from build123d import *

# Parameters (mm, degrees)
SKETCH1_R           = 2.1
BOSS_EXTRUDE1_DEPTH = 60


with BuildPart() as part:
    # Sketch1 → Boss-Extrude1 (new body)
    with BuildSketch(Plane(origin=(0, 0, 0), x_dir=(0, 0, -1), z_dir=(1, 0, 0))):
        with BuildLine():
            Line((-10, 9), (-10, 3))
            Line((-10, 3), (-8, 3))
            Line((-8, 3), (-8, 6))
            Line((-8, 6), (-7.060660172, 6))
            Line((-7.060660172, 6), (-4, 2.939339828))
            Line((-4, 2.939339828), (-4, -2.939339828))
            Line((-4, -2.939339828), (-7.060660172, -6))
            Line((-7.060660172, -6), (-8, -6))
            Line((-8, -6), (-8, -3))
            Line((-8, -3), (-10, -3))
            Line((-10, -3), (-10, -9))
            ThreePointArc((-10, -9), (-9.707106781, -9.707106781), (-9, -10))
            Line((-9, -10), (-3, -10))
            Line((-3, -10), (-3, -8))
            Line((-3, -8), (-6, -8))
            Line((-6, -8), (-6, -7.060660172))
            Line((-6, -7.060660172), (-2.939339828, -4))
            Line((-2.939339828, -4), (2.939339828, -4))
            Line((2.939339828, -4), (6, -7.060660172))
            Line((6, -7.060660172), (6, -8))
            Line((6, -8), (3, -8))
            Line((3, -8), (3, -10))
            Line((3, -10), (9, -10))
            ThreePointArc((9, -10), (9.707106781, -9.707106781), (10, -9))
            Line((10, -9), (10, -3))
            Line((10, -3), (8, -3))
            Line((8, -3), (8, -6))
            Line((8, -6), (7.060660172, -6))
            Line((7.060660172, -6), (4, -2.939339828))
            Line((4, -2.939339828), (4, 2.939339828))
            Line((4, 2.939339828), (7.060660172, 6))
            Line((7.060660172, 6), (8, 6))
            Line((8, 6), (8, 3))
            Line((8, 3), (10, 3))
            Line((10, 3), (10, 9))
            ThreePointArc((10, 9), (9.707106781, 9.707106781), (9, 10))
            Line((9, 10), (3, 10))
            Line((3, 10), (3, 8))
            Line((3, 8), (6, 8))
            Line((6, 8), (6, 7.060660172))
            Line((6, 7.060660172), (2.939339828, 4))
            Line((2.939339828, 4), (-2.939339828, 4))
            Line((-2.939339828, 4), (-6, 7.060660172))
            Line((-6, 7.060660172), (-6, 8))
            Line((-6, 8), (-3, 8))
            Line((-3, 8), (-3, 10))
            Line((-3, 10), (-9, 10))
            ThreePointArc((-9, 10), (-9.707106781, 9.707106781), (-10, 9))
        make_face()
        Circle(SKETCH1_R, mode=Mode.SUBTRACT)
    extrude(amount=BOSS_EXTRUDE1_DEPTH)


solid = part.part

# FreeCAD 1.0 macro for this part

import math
import FreeCAD as App
import Part
import Sketcher

doc = App.newDocument("Part")
params = doc.addObject("Spreadsheet::Sheet", "Params")
for row, (alias, value) in enumerate([
    ("sketch1_radius", "1 mm"),
    ("sketch1_diameter", "4.2 mm"),
    ("sketch1_width", "6 mm"),
    ("sketch1_width2", "3 mm"),
    ("sketch1_width3", "2 mm"),
    ("pad1_length", "60 mm"),
], start=1):
    params.set(f"A{row}", alias)
    params.set(f"B{row}", "=" + value)
    params.setAlias(f"B{row}", alias)

body = doc.addObject("PartDesign::Body", "Body")

# Sketch on YZ plane
sketch1 = doc.addObject("Sketcher::SketchObject", "Sketch")
body.addObject(sketch1)
sketch1.AttachmentSupport = (doc.YZ_Plane, [""])
sketch1.MapMode = "FlatFace"
sketch1.addGeometry([
    Part.LineSegment(App.Vector(9, 10, 0), App.Vector(3, 10, 0)),  # 0
    Part.LineSegment(App.Vector(3, 10, 0), App.Vector(3, 8, 0)),  # 1
    Part.LineSegment(App.Vector(3, 8, 0), App.Vector(6, 8, 0)),  # 2
    Part.LineSegment(App.Vector(6, 8, 0), App.Vector(6, 7.1, 0)),  # 3
    Part.LineSegment(App.Vector(6, 7.1, 0), App.Vector(2.9, 4, 0)),  # 4
    Part.LineSegment(App.Vector(2.9, 4, 0), App.Vector(-2.9, 4, 0)),  # 5
    Part.LineSegment(App.Vector(-2.9, 4, 0), App.Vector(-6, 7.1, 0)),  # 6
    Part.LineSegment(App.Vector(-6, 7.1, 0), App.Vector(-6, 8, 0)),  # 7
    Part.LineSegment(App.Vector(-6, 8, 0), App.Vector(-3, 8, 0)),  # 8
    Part.LineSegment(App.Vector(-3, 8, 0), App.Vector(-3, 10, 0)),  # 9
    Part.LineSegment(App.Vector(-3, 10, 0), App.Vector(-9, 10, 0)),  # 10
    Part.ArcOfCircle(Part.Circle(App.Vector(-9, 9, 0), App.Vector(0, 0, 1), 1), math.radians(90), math.radians(180)),  # 11
    Part.LineSegment(App.Vector(-10, 9, 0), App.Vector(-10, 3, 0)),  # 12
    Part.LineSegment(App.Vector(-10, 3, 0), App.Vector(-8, 3, 0)),  # 13
    Part.LineSegment(App.Vector(-8, 3, 0), App.Vector(-8, 6, 0)),  # 14
    Part.LineSegment(App.Vector(-8, 6, 0), App.Vector(-7.1, 6, 0)),  # 15
    Part.LineSegment(App.Vector(-7.1, 6, 0), App.Vector(-4, 2.9, 0)),  # 16
    Part.LineSegment(App.Vector(-4, 2.9, 0), App.Vector(-4, -2.9, 0)),  # 17
    Part.LineSegment(App.Vector(-4, -2.9, 0), App.Vector(-7.1, -6, 0)),  # 18
    Part.LineSegment(App.Vector(-7.1, -6, 0), App.Vector(-8, -6, 0)),  # 19
    Part.LineSegment(App.Vector(-8, -6, 0), App.Vector(-8, -3, 0)),  # 20
    Part.LineSegment(App.Vector(-8, -3, 0), App.Vector(-10, -3, 0)),  # 21
    Part.LineSegment(App.Vector(-10, -3, 0), App.Vector(-10, -9, 0)),  # 22
    Part.ArcOfCircle(Part.Circle(App.Vector(-9, -9, 0), App.Vector(0, 0, 1), 1), math.radians(-180), math.radians(-90)),  # 23
    Part.LineSegment(App.Vector(-9, -10, 0), App.Vector(-3, -10, 0)),  # 24
    Part.LineSegment(App.Vector(-3, -10, 0), App.Vector(-3, -8, 0)),  # 25
    Part.LineSegment(App.Vector(-3, -8, 0), App.Vector(-6, -8, 0)),  # 26
    Part.LineSegment(App.Vector(-6, -8, 0), App.Vector(-6, -7.1, 0)),  # 27
    Part.LineSegment(App.Vector(-6, -7.1, 0), App.Vector(-2.9, -4, 0)),  # 28
    Part.LineSegment(App.Vector(-2.9, -4, 0), App.Vector(2.9, -4, 0)),  # 29
    Part.LineSegment(App.Vector(2.9, -4, 0), App.Vector(6, -7.1, 0)),  # 30
    Part.LineSegment(App.Vector(6, -7.1, 0), App.Vector(6, -8, 0)),  # 31
    Part.LineSegment(App.Vector(6, -8, 0), App.Vector(3, -8, 0)),  # 32
    Part.LineSegment(App.Vector(3, -8, 0), App.Vector(3, -10, 0)),  # 33
    Part.LineSegment(App.Vector(3, -10, 0), App.Vector(9, -10, 0)),  # 34
    Part.ArcOfCircle(Part.Circle(App.Vector(9, -9, 0), App.Vector(0, 0, 1), 1), math.radians(-90), math.radians(0)),  # 35
    Part.LineSegment(App.Vector(10, -9, 0), App.Vector(10, -3, 0)),  # 36
    Part.LineSegment(App.Vector(10, -3, 0), App.Vector(8, -3, 0)),  # 37
    Part.LineSegment(App.Vector(8, -3, 0), App.Vector(8, -6, 0)),  # 38
    Part.LineSegment(App.Vector(8, -6, 0), App.Vector(7.1, -6, 0)),  # 39
    Part.LineSegment(App.Vector(7.1, -6, 0), App.Vector(4, -2.9, 0)),  # 40
    Part.LineSegment(App.Vector(4, -2.9, 0), App.Vector(4, 2.9, 0)),  # 41
    Part.LineSegment(App.Vector(4, 2.9, 0), App.Vector(7.1, 6, 0)),  # 42
    Part.LineSegment(App.Vector(7.1, 6, 0), App.Vector(8, 6, 0)),  # 43
    Part.LineSegment(App.Vector(8, 6, 0), App.Vector(8, 3, 0)),  # 44
    Part.LineSegment(App.Vector(8, 3, 0), App.Vector(10, 3, 0)),  # 45
    Part.LineSegment(App.Vector(10, 3, 0), App.Vector(10, 9, 0)),  # 46
    Part.ArcOfCircle(Part.Circle(App.Vector(9, 9, 0), App.Vector(0, 0, 1), 1), math.radians(0), math.radians(90)),  # 47
    Part.Circle(App.Vector(0, 0, 0), App.Vector(0, 0, 1), 2.1),  # 48
], False)
sketch1.addConstraint([
    Sketcher.Constraint("Coincident", 0, 2, 1, 1),
    Sketcher.Constraint("Coincident", 1, 2, 2, 1),
    Sketcher.Constraint("Coincident", 2, 2, 3, 1),
    Sketcher.Constraint("Coincident", 3, 2, 4, 1),
    Sketcher.Constraint("Coincident", 4, 2, 5, 1),
    Sketcher.Constraint("Coincident", 5, 2, 6, 1),
    Sketcher.Constraint("Coincident", 6, 2, 7, 1),
    Sketcher.Constraint("Coincident", 7, 2, 8, 1),
    Sketcher.Constraint("Coincident", 8, 2, 9, 1),
    Sketcher.Constraint("Coincident", 9, 2, 10, 1),
    Sketcher.Constraint("Tangent", 10, 2, 11, 1),
    Sketcher.Constraint("Tangent", 11, 2, 12, 1),
    Sketcher.Constraint("Coincident", 12, 2, 13, 1),
    Sketcher.Constraint("Coincident", 13, 2, 14, 1),
    Sketcher.Constraint("Coincident", 14, 2, 15, 1),
    Sketcher.Constraint("Coincident", 15, 2, 16, 1),
    Sketcher.Constraint("Coincident", 16, 2, 17, 1),
    Sketcher.Constraint("Coincident", 17, 2, 18, 1),
    Sketcher.Constraint("Coincident", 18, 2, 19, 1),
    Sketcher.Constraint("Coincident", 19, 2, 20, 1),
    Sketcher.Constraint("Coincident", 20, 2, 21, 1),
    Sketcher.Constraint("Coincident", 21, 2, 22, 1),
    Sketcher.Constraint("Tangent", 22, 2, 23, 1),
    Sketcher.Constraint("Tangent", 23, 2, 24, 1),
    Sketcher.Constraint("Coincident", 24, 2, 25, 1),
    Sketcher.Constraint("Coincident", 25, 2, 26, 1),
    Sketcher.Constraint("Coincident", 26, 2, 27, 1),
    Sketcher.Constraint("Coincident", 27, 2, 28, 1),
    Sketcher.Constraint("Coincident", 28, 2, 29, 1),
    Sketcher.Constraint("Coincident", 29, 2, 30, 1),
    Sketcher.Constraint("Coincident", 30, 2, 31, 1),
    Sketcher.Constraint("Coincident", 31, 2, 32, 1),
    Sketcher.Constraint("Coincident", 32, 2, 33, 1),
    Sketcher.Constraint("Coincident", 33, 2, 34, 1),
    Sketcher.Constraint("Tangent", 34, 2, 35, 1),
    Sketcher.Constraint("Tangent", 35, 2, 36, 1),
    Sketcher.Constraint("Coincident", 36, 2, 37, 1),
    Sketcher.Constraint("Coincident", 37, 2, 38, 1),
    Sketcher.Constraint("Coincident", 38, 2, 39, 1),
    Sketcher.Constraint("Coincident", 39, 2, 40, 1),
    Sketcher.Constraint("Coincident", 40, 2, 41, 1),
    Sketcher.Constraint("Coincident", 41, 2, 42, 1),
    Sketcher.Constraint("Coincident", 42, 2, 43, 1),
    Sketcher.Constraint("Coincident", 43, 2, 44, 1),
    Sketcher.Constraint("Coincident", 44, 2, 45, 1),
    Sketcher.Constraint("Coincident", 45, 2, 46, 1),
    Sketcher.Constraint("Tangent", 46, 2, 47, 1),
    Sketcher.Constraint("Tangent", 47, 2, 0, 1),
    Sketcher.Constraint("Horizontal", 0),
    Sketcher.Constraint("Vertical", 1),
    Sketcher.Constraint("Horizontal", 2),
    Sketcher.Constraint("Vertical", 3),
    Sketcher.Constraint("Horizontal", 5),
    Sketcher.Constraint("Vertical", 7),
    Sketcher.Constraint("Horizontal", 8),
    Sketcher.Constraint("Vertical", 9),
    Sketcher.Constraint("Horizontal", 10),
    Sketcher.Constraint("Vertical", 12),
    Sketcher.Constraint("Horizontal", 13),
    Sketcher.Constraint("Vertical", 14),
    Sketcher.Constraint("Horizontal", 15),
    Sketcher.Constraint("Vertical", 17),
    Sketcher.Constraint("Horizontal", 19),
    Sketcher.Constraint("Vertical", 20),
    Sketcher.Constraint("Horizontal", 21),
    Sketcher.Constraint("Vertical", 22),
    Sketcher.Constraint("Horizontal", 24),
    Sketcher.Constraint("Vertical", 25),
    Sketcher.Constraint("Horizontal", 26),
    Sketcher.Constraint("Vertical", 27),
    Sketcher.Constraint("Horizontal", 29),
    Sketcher.Constraint("Vertical", 31),
    Sketcher.Constraint("Horizontal", 32),
    Sketcher.Constraint("Vertical", 33),
    Sketcher.Constraint("Horizontal", 34),
    Sketcher.Constraint("Vertical", 36),
    Sketcher.Constraint("Horizontal", 37),
    Sketcher.Constraint("Vertical", 38),
    Sketcher.Constraint("Horizontal", 39),
    Sketcher.Constraint("Vertical", 41),
    Sketcher.Constraint("Horizontal", 43),
    Sketcher.Constraint("Vertical", 44),
    Sketcher.Constraint("Horizontal", 45),
    Sketcher.Constraint("Vertical", 46),
    Sketcher.Constraint("Coincident", 48, 3, -1, 1),
    Sketcher.Constraint("Equal", 11, 23),
    Sketcher.Constraint("Equal", 23, 35),
    Sketcher.Constraint("Equal", 35, 47),
    Sketcher.Constraint("Symmetric", 11, 3, 35, 3, -1, 1),
    Sketcher.Constraint("Symmetric", 23, 3, 47, 3, -1, 1),
    Sketcher.Constraint("Symmetric", 1, 2, 25, 2, -1, 1),
    Sketcher.Constraint("Symmetric", 3, 2, 27, 2, -1, 1),
    Sketcher.Constraint("Symmetric", 4, 2, 28, 2, -1, 1),
    Sketcher.Constraint("Symmetric", 6, 2, 30, 2, -1, 1),
    Sketcher.Constraint("Symmetric", 8, 2, 32, 2, -1, 1),
    Sketcher.Constraint("Symmetric", 13, 2, 37, 2, -1, 1),
    Sketcher.Constraint("Symmetric", 15, 2, 39, 2, -1, 1),
    Sketcher.Constraint("Symmetric", 16, 2, 40, 2, -1, 1),
    Sketcher.Constraint("Symmetric", 18, 2, 42, 2, -1, 1),
    Sketcher.Constraint("Symmetric", 20, 2, 44, 2, -1, 1),
    Sketcher.Constraint("Symmetric", 23, 3, 35, 3, -2),
    Sketcher.Constraint("Symmetric", 3, 2, 6, 2, -2),
    Sketcher.Constraint("Symmetric", 1, 2, 8, 2, -2),
    Sketcher.Constraint("Symmetric", 20, 2, 37, 2, -2),
    Sketcher.Constraint("Symmetric", 18, 2, 39, 2, -2),
    Sketcher.Constraint("Perpendicular", 4, 6),
    Sketcher.Constraint("Parallel", 6, 16),
    Sketcher.Constraint("Perpendicular", 16, 18),
    Sketcher.Constraint("Perpendicular", 28, 30),
    Sketcher.Constraint("Perpendicular", 40, 42),
    Sketcher.Constraint("Horizontal", 17, 2, 40, 2),
    Sketcher.Constraint("Equal", 45, 1),
    Sketcher.Constraint("Equal", 43, 3),
    Sketcher.Constraint("Equal", 34, 12),
    Sketcher.Constraint("Equal", 32, 14),
    Sketcher.Constraint("Equal", 29, 17),
    Sketcher.Constraint("Equal", 6, 16),
    Sketcher.Constraint("Radius", 11, 1.0),
    Sketcher.Constraint("Diameter", 48, 4.2),
    Sketcher.Constraint("DistanceX", 0, 2, 0, 1, 6.0),
    Sketcher.Constraint("DistanceX", 2, 1, 2, 2, 3.0),
    Sketcher.Constraint("DistanceX", 13, 1, 13, 2, 2.0),
    Sketcher.Constraint("DistanceX", 11, 3, -1, 1, 9.0),
    Sketcher.Constraint("DistanceY", -1, 1, 4, 2, 4.0),
    Sketcher.Constraint("DistanceX", 5, 2, 5, 1, 5.87868),
])
sketch1.setExpression("Constraints[117]", "Params.sketch1_radius")
sketch1.setExpression("Constraints[118]", "Params.sketch1_diameter")
sketch1.setExpression("Constraints[119]", "Params.sketch1_width")
sketch1.setExpression("Constraints[120]", "Params.sketch1_width2")
sketch1.setExpression("Constraints[121]", "Params.sketch1_width3")
pad1 = doc.addObject("PartDesign::Pad", "Pad")
body.addObject(pad1)
pad1.Profile = sketch1
pad1.setExpression("Length", "Params.pad1_length")

doc.recompute()
